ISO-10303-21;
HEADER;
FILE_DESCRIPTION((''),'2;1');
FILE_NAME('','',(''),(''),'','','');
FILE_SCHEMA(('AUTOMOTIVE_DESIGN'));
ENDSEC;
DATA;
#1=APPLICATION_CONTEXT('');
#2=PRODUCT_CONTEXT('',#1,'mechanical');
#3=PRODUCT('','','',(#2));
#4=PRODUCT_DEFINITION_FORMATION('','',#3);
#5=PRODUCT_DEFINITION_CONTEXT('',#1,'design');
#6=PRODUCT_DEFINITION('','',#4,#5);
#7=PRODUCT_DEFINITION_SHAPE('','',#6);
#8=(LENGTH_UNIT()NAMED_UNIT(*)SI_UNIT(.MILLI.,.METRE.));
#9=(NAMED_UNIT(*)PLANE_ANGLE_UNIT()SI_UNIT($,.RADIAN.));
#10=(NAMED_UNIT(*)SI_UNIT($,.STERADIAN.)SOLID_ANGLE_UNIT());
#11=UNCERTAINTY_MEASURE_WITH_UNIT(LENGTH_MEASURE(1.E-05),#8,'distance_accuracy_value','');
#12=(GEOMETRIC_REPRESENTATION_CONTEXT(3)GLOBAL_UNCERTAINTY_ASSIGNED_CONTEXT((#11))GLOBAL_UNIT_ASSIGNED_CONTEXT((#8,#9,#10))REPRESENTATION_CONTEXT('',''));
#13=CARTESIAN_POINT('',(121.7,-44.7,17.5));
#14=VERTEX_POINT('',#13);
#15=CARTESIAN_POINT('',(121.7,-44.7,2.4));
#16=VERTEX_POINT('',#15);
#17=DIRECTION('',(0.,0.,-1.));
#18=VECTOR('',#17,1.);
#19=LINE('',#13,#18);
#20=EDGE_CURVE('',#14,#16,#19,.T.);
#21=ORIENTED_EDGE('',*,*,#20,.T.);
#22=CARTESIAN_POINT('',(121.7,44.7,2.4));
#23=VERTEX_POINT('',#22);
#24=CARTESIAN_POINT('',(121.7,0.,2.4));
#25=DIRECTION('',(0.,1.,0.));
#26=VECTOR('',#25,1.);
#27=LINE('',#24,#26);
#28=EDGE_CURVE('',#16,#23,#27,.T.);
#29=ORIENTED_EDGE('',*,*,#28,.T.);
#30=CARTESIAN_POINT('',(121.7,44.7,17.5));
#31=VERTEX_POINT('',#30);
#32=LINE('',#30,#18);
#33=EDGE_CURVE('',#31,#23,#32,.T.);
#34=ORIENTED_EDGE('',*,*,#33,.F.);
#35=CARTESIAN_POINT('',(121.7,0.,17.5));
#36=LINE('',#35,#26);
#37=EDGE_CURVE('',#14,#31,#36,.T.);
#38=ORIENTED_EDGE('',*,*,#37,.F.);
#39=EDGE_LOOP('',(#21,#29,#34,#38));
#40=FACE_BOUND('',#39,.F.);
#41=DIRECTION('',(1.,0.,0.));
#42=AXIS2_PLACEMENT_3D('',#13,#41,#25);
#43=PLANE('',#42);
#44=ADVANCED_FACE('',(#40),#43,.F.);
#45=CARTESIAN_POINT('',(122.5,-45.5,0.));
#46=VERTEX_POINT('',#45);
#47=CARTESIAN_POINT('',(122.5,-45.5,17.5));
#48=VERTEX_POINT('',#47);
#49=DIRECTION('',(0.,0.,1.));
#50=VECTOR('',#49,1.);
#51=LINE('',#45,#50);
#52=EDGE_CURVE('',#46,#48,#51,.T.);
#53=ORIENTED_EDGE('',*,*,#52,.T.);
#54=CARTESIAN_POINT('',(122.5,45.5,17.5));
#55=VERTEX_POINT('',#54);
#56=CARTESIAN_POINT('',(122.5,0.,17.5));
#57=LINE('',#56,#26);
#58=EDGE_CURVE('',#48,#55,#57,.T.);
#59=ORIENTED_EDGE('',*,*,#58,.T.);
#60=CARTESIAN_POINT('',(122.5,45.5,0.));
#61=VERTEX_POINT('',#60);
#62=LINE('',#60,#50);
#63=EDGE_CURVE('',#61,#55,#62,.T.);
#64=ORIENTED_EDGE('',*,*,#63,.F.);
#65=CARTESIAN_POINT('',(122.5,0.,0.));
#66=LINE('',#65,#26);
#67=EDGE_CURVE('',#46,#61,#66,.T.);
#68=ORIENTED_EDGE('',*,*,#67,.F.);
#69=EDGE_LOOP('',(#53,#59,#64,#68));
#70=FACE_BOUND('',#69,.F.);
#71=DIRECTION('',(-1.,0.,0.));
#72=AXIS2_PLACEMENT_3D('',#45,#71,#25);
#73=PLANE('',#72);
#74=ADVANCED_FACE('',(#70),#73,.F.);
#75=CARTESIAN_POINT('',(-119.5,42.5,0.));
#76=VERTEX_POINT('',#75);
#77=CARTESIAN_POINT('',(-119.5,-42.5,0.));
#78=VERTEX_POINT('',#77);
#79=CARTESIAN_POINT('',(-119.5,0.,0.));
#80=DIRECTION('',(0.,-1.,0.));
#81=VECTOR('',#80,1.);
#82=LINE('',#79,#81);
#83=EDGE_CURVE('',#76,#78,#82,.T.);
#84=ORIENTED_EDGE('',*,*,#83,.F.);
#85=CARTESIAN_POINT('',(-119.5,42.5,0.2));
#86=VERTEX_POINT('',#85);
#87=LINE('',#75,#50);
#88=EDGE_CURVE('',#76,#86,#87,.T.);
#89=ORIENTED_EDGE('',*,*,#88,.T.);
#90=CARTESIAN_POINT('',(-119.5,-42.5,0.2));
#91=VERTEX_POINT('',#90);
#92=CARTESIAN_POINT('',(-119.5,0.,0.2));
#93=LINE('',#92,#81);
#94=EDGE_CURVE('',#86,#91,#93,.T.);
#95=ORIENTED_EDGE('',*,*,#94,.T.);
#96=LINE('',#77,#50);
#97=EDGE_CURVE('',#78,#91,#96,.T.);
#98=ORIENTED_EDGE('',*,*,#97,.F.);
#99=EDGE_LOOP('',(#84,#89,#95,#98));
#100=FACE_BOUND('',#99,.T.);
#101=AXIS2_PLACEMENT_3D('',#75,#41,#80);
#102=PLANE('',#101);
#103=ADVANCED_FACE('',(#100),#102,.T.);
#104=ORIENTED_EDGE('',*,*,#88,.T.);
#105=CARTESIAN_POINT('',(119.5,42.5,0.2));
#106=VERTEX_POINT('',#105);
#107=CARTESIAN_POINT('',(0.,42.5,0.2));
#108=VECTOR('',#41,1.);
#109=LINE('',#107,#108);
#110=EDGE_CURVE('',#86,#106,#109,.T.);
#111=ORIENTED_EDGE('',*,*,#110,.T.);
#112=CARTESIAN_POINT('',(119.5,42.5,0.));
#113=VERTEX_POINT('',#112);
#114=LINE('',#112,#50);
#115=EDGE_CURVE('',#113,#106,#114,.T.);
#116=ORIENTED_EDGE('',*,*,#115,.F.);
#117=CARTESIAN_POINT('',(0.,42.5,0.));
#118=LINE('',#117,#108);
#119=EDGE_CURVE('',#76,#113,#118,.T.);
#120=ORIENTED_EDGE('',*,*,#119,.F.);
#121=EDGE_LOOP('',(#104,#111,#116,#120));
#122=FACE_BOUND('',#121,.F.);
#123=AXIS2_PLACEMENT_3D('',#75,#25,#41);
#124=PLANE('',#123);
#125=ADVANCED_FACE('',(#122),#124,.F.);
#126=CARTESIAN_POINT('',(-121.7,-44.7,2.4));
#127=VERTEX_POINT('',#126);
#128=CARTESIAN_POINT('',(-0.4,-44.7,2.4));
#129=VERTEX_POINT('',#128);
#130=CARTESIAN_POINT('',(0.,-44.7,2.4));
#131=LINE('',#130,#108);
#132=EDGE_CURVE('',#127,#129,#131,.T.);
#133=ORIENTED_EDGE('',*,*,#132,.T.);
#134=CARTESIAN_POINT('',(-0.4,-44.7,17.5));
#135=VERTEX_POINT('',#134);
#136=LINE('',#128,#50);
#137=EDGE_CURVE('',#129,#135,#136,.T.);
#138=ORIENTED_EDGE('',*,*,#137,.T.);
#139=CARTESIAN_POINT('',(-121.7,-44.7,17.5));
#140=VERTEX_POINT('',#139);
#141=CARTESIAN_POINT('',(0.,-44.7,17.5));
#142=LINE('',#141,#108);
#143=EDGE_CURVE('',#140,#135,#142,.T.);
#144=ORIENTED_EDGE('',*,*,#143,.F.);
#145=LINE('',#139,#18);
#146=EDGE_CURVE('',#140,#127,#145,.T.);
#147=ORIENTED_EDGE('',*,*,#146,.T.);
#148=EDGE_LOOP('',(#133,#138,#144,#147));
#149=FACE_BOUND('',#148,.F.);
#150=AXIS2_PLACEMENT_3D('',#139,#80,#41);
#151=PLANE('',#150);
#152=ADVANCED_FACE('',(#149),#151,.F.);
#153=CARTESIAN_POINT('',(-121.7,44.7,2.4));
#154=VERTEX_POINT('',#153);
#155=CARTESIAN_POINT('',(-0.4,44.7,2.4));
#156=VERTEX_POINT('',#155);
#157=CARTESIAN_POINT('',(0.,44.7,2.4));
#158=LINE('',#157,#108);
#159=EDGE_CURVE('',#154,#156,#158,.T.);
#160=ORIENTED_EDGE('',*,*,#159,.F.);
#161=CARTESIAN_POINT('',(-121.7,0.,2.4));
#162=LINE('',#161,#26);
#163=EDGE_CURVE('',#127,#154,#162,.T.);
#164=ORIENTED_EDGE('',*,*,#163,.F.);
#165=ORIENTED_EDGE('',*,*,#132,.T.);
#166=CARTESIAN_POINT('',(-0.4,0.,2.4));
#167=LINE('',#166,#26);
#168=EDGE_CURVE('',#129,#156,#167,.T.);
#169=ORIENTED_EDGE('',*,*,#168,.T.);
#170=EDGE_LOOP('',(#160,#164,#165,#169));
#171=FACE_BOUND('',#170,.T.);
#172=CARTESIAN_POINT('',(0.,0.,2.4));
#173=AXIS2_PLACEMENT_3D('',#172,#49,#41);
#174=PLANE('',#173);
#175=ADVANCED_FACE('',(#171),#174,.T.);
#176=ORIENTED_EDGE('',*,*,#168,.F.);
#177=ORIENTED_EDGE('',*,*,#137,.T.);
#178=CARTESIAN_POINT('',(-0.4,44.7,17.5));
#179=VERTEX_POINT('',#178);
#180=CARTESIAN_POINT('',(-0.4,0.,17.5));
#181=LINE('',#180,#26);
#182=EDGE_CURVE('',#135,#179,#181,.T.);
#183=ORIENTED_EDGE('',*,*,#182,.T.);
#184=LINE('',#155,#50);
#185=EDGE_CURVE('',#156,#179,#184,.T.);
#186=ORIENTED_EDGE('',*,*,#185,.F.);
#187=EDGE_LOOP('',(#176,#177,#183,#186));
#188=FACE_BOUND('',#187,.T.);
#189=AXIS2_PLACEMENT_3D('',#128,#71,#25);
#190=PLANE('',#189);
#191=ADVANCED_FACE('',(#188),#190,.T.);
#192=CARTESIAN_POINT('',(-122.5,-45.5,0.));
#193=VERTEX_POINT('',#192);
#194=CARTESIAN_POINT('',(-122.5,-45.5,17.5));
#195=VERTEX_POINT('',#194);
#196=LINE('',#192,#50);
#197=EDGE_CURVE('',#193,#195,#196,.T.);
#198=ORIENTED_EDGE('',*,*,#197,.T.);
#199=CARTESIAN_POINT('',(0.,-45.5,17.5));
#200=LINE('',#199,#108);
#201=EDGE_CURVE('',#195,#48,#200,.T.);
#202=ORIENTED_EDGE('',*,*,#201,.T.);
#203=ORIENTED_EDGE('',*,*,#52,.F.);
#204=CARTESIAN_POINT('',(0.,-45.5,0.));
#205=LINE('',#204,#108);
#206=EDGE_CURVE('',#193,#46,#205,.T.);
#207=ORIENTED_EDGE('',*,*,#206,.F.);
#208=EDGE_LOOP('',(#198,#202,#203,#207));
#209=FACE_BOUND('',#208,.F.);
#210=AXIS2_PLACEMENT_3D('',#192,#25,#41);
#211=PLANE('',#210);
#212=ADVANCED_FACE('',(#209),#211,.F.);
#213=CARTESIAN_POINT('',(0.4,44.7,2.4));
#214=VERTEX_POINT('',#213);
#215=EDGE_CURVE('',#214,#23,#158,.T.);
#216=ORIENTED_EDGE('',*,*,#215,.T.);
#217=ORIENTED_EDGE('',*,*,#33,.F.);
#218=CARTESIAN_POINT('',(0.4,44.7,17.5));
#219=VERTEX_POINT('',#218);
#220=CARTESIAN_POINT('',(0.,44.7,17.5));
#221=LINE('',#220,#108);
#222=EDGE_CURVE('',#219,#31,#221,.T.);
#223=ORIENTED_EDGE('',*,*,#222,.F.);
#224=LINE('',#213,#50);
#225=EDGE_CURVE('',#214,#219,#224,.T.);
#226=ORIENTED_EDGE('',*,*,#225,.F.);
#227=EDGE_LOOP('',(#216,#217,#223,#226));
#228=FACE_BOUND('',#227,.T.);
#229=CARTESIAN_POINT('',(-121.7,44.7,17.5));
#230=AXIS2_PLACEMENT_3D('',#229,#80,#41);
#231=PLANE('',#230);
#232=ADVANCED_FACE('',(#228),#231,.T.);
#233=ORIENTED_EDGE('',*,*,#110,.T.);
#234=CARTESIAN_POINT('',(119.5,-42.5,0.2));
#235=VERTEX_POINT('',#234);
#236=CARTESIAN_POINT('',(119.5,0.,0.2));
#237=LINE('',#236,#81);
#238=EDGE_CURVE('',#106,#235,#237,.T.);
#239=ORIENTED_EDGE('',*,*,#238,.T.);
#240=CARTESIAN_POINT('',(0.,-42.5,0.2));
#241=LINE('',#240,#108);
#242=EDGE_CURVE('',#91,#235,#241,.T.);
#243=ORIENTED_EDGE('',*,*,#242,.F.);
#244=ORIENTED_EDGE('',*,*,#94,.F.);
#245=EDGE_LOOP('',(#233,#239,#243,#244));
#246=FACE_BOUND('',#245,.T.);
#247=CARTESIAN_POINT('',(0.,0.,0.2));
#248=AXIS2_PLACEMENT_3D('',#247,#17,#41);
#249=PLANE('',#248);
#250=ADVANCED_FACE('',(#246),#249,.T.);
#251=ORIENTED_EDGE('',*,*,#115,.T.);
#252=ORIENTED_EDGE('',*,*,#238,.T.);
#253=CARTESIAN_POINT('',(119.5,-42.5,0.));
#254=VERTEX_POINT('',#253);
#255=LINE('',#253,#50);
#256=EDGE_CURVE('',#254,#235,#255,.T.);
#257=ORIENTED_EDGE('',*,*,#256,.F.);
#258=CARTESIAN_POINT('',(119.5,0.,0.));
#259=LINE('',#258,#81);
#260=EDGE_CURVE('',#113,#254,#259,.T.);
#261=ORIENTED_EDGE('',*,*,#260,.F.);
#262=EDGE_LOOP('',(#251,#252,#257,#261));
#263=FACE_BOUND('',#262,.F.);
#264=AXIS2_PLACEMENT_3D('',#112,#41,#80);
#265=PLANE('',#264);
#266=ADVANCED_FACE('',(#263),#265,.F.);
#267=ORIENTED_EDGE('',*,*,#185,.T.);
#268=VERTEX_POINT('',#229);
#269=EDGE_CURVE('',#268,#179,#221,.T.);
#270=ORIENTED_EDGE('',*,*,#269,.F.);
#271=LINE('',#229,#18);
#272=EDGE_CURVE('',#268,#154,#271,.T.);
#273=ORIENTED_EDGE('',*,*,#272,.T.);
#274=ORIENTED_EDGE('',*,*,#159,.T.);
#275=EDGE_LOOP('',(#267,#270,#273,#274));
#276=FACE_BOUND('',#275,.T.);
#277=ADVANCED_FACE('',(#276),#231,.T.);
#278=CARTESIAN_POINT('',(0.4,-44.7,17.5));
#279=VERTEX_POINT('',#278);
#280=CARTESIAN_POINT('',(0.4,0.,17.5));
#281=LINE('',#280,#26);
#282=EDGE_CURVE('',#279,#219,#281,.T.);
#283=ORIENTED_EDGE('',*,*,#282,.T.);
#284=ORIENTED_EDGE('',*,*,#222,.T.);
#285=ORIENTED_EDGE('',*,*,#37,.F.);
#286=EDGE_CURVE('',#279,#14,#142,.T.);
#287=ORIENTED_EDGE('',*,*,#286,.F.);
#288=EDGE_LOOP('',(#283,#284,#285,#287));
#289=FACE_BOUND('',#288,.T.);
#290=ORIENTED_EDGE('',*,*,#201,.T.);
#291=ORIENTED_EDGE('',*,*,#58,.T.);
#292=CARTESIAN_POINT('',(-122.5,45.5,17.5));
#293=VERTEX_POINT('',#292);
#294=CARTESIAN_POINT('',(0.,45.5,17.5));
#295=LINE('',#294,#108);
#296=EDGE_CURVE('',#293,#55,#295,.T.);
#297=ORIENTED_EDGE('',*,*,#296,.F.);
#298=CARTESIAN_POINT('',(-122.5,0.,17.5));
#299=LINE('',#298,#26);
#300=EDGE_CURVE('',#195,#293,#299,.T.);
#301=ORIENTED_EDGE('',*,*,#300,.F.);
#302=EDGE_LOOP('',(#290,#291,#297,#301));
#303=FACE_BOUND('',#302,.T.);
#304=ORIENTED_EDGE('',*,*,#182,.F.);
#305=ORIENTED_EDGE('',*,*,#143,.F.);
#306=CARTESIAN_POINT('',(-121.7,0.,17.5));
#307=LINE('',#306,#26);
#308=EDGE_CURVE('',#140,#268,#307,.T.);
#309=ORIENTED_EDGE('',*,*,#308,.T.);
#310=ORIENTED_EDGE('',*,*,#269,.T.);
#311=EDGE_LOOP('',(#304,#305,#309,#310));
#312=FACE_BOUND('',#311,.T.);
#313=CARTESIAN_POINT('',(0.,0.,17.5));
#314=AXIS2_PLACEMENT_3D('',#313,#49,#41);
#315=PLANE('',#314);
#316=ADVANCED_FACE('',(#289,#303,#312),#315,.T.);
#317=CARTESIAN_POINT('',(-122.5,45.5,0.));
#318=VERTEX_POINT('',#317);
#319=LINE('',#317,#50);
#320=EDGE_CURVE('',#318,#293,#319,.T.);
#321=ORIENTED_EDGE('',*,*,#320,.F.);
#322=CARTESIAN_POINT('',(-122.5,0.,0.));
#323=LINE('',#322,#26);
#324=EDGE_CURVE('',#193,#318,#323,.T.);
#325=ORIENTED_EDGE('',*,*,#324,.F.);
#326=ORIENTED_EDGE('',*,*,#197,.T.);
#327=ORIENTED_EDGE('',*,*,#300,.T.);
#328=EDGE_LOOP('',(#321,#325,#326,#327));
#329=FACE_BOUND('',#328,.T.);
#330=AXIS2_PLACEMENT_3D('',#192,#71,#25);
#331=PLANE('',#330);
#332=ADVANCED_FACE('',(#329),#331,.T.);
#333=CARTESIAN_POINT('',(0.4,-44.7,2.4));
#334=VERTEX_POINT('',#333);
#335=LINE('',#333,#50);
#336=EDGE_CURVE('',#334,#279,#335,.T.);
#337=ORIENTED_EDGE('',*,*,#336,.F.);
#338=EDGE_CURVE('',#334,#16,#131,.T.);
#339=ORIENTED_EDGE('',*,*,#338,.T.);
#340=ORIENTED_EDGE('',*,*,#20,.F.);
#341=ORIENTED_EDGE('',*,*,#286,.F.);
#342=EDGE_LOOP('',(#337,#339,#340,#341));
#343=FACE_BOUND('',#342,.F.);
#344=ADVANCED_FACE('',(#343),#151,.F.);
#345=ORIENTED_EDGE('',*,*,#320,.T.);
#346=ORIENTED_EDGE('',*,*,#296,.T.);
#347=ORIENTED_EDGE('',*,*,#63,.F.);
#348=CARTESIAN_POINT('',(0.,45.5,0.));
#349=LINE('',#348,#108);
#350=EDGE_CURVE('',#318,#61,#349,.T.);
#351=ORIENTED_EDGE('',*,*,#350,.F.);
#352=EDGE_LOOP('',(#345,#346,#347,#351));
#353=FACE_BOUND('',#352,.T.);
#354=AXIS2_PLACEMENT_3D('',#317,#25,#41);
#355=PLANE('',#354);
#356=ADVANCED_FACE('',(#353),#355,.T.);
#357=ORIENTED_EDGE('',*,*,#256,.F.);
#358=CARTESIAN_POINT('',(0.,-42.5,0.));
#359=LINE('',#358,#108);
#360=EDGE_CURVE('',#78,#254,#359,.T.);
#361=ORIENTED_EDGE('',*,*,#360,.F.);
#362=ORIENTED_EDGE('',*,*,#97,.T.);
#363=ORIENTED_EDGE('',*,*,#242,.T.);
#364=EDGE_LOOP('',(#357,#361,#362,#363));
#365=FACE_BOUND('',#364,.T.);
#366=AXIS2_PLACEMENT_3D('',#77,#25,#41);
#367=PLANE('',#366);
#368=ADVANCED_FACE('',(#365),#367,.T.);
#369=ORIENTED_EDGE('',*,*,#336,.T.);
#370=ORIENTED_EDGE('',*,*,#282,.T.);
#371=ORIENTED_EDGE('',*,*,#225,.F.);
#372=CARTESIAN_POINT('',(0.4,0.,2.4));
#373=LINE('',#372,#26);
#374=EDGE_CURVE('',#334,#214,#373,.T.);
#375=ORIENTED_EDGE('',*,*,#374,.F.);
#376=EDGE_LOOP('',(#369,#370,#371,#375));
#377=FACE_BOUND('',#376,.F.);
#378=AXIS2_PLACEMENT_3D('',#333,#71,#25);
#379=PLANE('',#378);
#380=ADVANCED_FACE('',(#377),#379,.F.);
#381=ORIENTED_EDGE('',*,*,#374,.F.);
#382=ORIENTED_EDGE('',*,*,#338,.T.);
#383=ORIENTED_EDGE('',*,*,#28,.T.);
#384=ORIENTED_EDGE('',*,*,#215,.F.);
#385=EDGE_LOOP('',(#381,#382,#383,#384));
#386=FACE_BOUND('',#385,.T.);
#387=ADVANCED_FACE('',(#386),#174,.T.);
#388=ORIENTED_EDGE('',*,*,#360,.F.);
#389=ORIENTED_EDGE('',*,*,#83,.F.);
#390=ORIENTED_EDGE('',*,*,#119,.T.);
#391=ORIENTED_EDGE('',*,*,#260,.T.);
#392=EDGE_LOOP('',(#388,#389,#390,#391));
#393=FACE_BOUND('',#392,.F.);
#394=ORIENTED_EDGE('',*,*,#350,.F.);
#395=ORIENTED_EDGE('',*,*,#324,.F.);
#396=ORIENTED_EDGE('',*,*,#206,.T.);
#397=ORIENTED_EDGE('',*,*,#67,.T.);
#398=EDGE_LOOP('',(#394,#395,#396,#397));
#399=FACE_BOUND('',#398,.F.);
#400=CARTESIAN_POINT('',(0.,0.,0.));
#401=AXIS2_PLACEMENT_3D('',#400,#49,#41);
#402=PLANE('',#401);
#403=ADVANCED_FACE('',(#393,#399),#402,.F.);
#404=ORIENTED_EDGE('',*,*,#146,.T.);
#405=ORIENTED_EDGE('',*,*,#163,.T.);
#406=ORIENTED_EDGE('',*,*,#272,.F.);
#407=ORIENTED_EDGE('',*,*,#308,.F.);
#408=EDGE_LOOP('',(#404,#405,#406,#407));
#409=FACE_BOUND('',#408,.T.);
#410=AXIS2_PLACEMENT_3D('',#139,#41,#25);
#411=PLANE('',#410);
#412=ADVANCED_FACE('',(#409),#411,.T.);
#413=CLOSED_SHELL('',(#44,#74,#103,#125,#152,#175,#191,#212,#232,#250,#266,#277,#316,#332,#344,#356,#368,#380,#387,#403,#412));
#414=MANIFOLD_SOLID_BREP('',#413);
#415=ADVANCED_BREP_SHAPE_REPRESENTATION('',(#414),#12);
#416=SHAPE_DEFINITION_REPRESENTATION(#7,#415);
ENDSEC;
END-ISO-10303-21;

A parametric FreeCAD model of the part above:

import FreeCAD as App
import Part
import Sketcher
from FreeCAD import Vector
Q = App.Units.Quantity

doc = App.newDocument("Part")
body = doc.addObject("PartDesign::Body", "Body")

sketch1 = doc.addObject("Sketcher::SketchObject", "Sketch")
body.addObject(sketch1)
sketch1.AttachmentSupport = (doc.XY_Plane, [""])
sketch1.MapMode = "FlatFace"
sketch1.addGeometry([
    Part.LineSegment(Vector(-122, 46, 0), Vector(-122, -46, 0)),
    Part.LineSegment(Vector(-122, -46, 0), Vector(122, -46, 0)),
    Part.LineSegment(Vector(122, -46, 0), Vector(122, 46, 0)),
    Part.LineSegment(Vector(122, 46, 0), Vector(-122, 46, 0)),
], False)
sketch1.addConstraint([
    Sketcher.Constraint("Coincident", 0, 2, 1, 1),
    Sketcher.Constraint("Coincident", 1, 2, 2, 1),
    Sketcher.Constraint("Coincident", 2, 2, 3, 1),
    Sketcher.Constraint("Coincident", 3, 2, 0, 1),
    Sketcher.Constraint("Vertical", 0),
    Sketcher.Constraint("Horizontal", 1),
    Sketcher.Constraint("Vertical", 2),
    Sketcher.Constraint("Horizontal", 3),
    Sketcher.Constraint("Symmetric", 0, 2, 2, 2, -1, 1),
    Sketcher.Constraint("DistanceX", 1, 1, 1, 2, Q("245 mm")),
    Sketcher.Constraint("DistanceY", 0, 2, 0, 1, Q("91 mm")),
])
pad1 = doc.addObject("PartDesign::Pad", "Pad")
body.addObject(pad1)
pad1.Profile = sketch1
pad1.Length = 17.5

sketch2 = doc.addObject("Sketcher::SketchObject", "Sketch001")
body.addObject(sketch2)
sketch2.AttachmentSupport = (doc.XY_Plane, [""])
sketch2.MapMode = "FlatFace"
sketch2.AttachmentOffset = App.Placement(Vector(0, 0, 17.5), App.Rotation())
sketch2.addGeometry([
    Part.LineSegment(Vector(-122, 45, 0), Vector(-122, -45, 0)),
    Part.LineSegment(Vector(-122, -45, 0), Vector(122, -45, 0)),
    Part.LineSegment(Vector(122, -45, 0), Vector(122, 45, 0)),
    Part.LineSegment(Vector(122, 45, 0), Vector(-122, 45, 0)),
], False)
sketch2.addConstraint([
    Sketcher.Constraint("Coincident", 0, 2, 1, 1),
    Sketcher.Constraint("Coincident", 1, 2, 2, 1),
    Sketcher.Constraint("Coincident", 2, 2, 3, 1),
    Sketcher.Constraint("Coincident", 3, 2, 0, 1),
    Sketcher.Constraint("Vertical", 0),
    Sketcher.Constraint("Horizontal", 1),
    Sketcher.Constraint("Vertical", 2),
    Sketcher.Constraint("Horizontal", 3),
    Sketcher.Constraint("Symmetric", 0, 2, 2, 2, -1, 1),
    Sketcher.Constraint("DistanceX", 1, 1, 1, 2, Q("243.4 mm")),
    Sketcher.Constraint("DistanceY", 0, 2, 0, 1, Q("89.4 mm")),
])
pocket1 = doc.addObject("PartDesign::Pocket", "Pocket")
body.addObject(pocket1)
pocket1.Profile = sketch2
pocket1.Length = 15.1

sketch3 = doc.addObject("Sketcher::SketchObject", "Sketch002")
body.addObject(sketch3)
sketch3.AttachmentSupport = (doc.XY_Plane, [""])
sketch3.MapMode = "FlatFace"
sketch3.AttachmentOffset = App.Placement(Vector(0, 0, 2.4), App.Rotation())
sketch3.addGeometry([
    Part.LineSegment(Vector(-0.4, 44.7, 0), Vector(-0.4, -44.7, 0)),
    Part.LineSegment(Vector(-0.4, -44.7, 0), Vector(0.4, -44.7, 0)),
    Part.LineSegment(Vector(0.4, -44.7, 0), Vector(0.4, 44.7, 0)),
    Part.LineSegment(Vector(0.4, 44.7, 0), Vector(-0.4, 44.7, 0)),
], False)
sketch3.addConstraint([
    Sketcher.Constraint("Coincident", 0, 2, 1, 1),
    Sketcher.Constraint("Coincident", 1, 2, 2, 1),
    Sketcher.Constraint("Coincident", 2, 2, 3, 1),
    Sketcher.Constraint("Coincident", 3, 2, 0, 1),
    Sketcher.Constraint("Vertical", 0),
    Sketcher.Constraint("Horizontal", 1),
    Sketcher.Constraint("Vertical", 2),
    Sketcher.Constraint("Horizontal", 3),
    Sketcher.Constraint("Symmetric", 0, 2, 2, 2, -1, 1),
    Sketcher.Constraint("DistanceX", 1, 1, 1, 2, Q("0.8 mm")),
    Sketcher.Constraint("DistanceY", 0, 2, 0, 1, Q("89.4 mm")),
])
pad2 = doc.addObject("PartDesign::Pad", "Pad001")
body.addObject(pad2)
pad2.Profile = sketch3
pad2.Length = 15.1

sketch4 = doc.addObject("Sketcher::SketchObject", "Sketch003")
body.addObject(sketch4)
sketch4.AttachmentSupport = (doc.XY_Plane, [""])
sketch4.MapMode = "FlatFace"
sketch4.addGeometry([
    Part.LineSegment(Vector(-120, -42, 0), Vector(-120, 42, 0)),
    Part.LineSegment(Vector(-120, 42, 0), Vector(120, 42, 0)),
    Part.LineSegment(Vector(120, 42, 0), Vector(120, -42, 0)),
    Part.LineSegment(Vector(120, -42, 0), Vector(-120, -42, 0)),
], False)
sketch4.addConstraint([
    Sketcher.Constraint("Coincident", 0, 2, 1, 1),
    Sketcher.Constraint("Coincident", 1, 2, 2, 1),
    Sketcher.Constraint("Coincident", 2, 2, 3, 1),
    Sketcher.Constraint("Coincident", 3, 2, 0, 1),
    Sketcher.Constraint("Vertical", 0),
    Sketcher.Constraint("Horizontal", 1),
    Sketcher.Constraint("Vertical", 2),
    Sketcher.Constraint("Horizontal", 3),
    Sketcher.Constraint("Symmetric", 0, 2, 2, 2, -1, 1),
    Sketcher.Constraint("DistanceX", 1, 1, 1, 2, Q("239 mm")),
    Sketcher.Constraint("DistanceY", 0, 1, 0, 2, Q("85 mm")),
])
pocket2 = doc.addObject("PartDesign::Pocket", "Pocket001")
body.addObject(pocket2)
pocket2.Profile = sketch4
pocket2.Length = 0.2
pocket2.Reversed = True

doc.recompute()
